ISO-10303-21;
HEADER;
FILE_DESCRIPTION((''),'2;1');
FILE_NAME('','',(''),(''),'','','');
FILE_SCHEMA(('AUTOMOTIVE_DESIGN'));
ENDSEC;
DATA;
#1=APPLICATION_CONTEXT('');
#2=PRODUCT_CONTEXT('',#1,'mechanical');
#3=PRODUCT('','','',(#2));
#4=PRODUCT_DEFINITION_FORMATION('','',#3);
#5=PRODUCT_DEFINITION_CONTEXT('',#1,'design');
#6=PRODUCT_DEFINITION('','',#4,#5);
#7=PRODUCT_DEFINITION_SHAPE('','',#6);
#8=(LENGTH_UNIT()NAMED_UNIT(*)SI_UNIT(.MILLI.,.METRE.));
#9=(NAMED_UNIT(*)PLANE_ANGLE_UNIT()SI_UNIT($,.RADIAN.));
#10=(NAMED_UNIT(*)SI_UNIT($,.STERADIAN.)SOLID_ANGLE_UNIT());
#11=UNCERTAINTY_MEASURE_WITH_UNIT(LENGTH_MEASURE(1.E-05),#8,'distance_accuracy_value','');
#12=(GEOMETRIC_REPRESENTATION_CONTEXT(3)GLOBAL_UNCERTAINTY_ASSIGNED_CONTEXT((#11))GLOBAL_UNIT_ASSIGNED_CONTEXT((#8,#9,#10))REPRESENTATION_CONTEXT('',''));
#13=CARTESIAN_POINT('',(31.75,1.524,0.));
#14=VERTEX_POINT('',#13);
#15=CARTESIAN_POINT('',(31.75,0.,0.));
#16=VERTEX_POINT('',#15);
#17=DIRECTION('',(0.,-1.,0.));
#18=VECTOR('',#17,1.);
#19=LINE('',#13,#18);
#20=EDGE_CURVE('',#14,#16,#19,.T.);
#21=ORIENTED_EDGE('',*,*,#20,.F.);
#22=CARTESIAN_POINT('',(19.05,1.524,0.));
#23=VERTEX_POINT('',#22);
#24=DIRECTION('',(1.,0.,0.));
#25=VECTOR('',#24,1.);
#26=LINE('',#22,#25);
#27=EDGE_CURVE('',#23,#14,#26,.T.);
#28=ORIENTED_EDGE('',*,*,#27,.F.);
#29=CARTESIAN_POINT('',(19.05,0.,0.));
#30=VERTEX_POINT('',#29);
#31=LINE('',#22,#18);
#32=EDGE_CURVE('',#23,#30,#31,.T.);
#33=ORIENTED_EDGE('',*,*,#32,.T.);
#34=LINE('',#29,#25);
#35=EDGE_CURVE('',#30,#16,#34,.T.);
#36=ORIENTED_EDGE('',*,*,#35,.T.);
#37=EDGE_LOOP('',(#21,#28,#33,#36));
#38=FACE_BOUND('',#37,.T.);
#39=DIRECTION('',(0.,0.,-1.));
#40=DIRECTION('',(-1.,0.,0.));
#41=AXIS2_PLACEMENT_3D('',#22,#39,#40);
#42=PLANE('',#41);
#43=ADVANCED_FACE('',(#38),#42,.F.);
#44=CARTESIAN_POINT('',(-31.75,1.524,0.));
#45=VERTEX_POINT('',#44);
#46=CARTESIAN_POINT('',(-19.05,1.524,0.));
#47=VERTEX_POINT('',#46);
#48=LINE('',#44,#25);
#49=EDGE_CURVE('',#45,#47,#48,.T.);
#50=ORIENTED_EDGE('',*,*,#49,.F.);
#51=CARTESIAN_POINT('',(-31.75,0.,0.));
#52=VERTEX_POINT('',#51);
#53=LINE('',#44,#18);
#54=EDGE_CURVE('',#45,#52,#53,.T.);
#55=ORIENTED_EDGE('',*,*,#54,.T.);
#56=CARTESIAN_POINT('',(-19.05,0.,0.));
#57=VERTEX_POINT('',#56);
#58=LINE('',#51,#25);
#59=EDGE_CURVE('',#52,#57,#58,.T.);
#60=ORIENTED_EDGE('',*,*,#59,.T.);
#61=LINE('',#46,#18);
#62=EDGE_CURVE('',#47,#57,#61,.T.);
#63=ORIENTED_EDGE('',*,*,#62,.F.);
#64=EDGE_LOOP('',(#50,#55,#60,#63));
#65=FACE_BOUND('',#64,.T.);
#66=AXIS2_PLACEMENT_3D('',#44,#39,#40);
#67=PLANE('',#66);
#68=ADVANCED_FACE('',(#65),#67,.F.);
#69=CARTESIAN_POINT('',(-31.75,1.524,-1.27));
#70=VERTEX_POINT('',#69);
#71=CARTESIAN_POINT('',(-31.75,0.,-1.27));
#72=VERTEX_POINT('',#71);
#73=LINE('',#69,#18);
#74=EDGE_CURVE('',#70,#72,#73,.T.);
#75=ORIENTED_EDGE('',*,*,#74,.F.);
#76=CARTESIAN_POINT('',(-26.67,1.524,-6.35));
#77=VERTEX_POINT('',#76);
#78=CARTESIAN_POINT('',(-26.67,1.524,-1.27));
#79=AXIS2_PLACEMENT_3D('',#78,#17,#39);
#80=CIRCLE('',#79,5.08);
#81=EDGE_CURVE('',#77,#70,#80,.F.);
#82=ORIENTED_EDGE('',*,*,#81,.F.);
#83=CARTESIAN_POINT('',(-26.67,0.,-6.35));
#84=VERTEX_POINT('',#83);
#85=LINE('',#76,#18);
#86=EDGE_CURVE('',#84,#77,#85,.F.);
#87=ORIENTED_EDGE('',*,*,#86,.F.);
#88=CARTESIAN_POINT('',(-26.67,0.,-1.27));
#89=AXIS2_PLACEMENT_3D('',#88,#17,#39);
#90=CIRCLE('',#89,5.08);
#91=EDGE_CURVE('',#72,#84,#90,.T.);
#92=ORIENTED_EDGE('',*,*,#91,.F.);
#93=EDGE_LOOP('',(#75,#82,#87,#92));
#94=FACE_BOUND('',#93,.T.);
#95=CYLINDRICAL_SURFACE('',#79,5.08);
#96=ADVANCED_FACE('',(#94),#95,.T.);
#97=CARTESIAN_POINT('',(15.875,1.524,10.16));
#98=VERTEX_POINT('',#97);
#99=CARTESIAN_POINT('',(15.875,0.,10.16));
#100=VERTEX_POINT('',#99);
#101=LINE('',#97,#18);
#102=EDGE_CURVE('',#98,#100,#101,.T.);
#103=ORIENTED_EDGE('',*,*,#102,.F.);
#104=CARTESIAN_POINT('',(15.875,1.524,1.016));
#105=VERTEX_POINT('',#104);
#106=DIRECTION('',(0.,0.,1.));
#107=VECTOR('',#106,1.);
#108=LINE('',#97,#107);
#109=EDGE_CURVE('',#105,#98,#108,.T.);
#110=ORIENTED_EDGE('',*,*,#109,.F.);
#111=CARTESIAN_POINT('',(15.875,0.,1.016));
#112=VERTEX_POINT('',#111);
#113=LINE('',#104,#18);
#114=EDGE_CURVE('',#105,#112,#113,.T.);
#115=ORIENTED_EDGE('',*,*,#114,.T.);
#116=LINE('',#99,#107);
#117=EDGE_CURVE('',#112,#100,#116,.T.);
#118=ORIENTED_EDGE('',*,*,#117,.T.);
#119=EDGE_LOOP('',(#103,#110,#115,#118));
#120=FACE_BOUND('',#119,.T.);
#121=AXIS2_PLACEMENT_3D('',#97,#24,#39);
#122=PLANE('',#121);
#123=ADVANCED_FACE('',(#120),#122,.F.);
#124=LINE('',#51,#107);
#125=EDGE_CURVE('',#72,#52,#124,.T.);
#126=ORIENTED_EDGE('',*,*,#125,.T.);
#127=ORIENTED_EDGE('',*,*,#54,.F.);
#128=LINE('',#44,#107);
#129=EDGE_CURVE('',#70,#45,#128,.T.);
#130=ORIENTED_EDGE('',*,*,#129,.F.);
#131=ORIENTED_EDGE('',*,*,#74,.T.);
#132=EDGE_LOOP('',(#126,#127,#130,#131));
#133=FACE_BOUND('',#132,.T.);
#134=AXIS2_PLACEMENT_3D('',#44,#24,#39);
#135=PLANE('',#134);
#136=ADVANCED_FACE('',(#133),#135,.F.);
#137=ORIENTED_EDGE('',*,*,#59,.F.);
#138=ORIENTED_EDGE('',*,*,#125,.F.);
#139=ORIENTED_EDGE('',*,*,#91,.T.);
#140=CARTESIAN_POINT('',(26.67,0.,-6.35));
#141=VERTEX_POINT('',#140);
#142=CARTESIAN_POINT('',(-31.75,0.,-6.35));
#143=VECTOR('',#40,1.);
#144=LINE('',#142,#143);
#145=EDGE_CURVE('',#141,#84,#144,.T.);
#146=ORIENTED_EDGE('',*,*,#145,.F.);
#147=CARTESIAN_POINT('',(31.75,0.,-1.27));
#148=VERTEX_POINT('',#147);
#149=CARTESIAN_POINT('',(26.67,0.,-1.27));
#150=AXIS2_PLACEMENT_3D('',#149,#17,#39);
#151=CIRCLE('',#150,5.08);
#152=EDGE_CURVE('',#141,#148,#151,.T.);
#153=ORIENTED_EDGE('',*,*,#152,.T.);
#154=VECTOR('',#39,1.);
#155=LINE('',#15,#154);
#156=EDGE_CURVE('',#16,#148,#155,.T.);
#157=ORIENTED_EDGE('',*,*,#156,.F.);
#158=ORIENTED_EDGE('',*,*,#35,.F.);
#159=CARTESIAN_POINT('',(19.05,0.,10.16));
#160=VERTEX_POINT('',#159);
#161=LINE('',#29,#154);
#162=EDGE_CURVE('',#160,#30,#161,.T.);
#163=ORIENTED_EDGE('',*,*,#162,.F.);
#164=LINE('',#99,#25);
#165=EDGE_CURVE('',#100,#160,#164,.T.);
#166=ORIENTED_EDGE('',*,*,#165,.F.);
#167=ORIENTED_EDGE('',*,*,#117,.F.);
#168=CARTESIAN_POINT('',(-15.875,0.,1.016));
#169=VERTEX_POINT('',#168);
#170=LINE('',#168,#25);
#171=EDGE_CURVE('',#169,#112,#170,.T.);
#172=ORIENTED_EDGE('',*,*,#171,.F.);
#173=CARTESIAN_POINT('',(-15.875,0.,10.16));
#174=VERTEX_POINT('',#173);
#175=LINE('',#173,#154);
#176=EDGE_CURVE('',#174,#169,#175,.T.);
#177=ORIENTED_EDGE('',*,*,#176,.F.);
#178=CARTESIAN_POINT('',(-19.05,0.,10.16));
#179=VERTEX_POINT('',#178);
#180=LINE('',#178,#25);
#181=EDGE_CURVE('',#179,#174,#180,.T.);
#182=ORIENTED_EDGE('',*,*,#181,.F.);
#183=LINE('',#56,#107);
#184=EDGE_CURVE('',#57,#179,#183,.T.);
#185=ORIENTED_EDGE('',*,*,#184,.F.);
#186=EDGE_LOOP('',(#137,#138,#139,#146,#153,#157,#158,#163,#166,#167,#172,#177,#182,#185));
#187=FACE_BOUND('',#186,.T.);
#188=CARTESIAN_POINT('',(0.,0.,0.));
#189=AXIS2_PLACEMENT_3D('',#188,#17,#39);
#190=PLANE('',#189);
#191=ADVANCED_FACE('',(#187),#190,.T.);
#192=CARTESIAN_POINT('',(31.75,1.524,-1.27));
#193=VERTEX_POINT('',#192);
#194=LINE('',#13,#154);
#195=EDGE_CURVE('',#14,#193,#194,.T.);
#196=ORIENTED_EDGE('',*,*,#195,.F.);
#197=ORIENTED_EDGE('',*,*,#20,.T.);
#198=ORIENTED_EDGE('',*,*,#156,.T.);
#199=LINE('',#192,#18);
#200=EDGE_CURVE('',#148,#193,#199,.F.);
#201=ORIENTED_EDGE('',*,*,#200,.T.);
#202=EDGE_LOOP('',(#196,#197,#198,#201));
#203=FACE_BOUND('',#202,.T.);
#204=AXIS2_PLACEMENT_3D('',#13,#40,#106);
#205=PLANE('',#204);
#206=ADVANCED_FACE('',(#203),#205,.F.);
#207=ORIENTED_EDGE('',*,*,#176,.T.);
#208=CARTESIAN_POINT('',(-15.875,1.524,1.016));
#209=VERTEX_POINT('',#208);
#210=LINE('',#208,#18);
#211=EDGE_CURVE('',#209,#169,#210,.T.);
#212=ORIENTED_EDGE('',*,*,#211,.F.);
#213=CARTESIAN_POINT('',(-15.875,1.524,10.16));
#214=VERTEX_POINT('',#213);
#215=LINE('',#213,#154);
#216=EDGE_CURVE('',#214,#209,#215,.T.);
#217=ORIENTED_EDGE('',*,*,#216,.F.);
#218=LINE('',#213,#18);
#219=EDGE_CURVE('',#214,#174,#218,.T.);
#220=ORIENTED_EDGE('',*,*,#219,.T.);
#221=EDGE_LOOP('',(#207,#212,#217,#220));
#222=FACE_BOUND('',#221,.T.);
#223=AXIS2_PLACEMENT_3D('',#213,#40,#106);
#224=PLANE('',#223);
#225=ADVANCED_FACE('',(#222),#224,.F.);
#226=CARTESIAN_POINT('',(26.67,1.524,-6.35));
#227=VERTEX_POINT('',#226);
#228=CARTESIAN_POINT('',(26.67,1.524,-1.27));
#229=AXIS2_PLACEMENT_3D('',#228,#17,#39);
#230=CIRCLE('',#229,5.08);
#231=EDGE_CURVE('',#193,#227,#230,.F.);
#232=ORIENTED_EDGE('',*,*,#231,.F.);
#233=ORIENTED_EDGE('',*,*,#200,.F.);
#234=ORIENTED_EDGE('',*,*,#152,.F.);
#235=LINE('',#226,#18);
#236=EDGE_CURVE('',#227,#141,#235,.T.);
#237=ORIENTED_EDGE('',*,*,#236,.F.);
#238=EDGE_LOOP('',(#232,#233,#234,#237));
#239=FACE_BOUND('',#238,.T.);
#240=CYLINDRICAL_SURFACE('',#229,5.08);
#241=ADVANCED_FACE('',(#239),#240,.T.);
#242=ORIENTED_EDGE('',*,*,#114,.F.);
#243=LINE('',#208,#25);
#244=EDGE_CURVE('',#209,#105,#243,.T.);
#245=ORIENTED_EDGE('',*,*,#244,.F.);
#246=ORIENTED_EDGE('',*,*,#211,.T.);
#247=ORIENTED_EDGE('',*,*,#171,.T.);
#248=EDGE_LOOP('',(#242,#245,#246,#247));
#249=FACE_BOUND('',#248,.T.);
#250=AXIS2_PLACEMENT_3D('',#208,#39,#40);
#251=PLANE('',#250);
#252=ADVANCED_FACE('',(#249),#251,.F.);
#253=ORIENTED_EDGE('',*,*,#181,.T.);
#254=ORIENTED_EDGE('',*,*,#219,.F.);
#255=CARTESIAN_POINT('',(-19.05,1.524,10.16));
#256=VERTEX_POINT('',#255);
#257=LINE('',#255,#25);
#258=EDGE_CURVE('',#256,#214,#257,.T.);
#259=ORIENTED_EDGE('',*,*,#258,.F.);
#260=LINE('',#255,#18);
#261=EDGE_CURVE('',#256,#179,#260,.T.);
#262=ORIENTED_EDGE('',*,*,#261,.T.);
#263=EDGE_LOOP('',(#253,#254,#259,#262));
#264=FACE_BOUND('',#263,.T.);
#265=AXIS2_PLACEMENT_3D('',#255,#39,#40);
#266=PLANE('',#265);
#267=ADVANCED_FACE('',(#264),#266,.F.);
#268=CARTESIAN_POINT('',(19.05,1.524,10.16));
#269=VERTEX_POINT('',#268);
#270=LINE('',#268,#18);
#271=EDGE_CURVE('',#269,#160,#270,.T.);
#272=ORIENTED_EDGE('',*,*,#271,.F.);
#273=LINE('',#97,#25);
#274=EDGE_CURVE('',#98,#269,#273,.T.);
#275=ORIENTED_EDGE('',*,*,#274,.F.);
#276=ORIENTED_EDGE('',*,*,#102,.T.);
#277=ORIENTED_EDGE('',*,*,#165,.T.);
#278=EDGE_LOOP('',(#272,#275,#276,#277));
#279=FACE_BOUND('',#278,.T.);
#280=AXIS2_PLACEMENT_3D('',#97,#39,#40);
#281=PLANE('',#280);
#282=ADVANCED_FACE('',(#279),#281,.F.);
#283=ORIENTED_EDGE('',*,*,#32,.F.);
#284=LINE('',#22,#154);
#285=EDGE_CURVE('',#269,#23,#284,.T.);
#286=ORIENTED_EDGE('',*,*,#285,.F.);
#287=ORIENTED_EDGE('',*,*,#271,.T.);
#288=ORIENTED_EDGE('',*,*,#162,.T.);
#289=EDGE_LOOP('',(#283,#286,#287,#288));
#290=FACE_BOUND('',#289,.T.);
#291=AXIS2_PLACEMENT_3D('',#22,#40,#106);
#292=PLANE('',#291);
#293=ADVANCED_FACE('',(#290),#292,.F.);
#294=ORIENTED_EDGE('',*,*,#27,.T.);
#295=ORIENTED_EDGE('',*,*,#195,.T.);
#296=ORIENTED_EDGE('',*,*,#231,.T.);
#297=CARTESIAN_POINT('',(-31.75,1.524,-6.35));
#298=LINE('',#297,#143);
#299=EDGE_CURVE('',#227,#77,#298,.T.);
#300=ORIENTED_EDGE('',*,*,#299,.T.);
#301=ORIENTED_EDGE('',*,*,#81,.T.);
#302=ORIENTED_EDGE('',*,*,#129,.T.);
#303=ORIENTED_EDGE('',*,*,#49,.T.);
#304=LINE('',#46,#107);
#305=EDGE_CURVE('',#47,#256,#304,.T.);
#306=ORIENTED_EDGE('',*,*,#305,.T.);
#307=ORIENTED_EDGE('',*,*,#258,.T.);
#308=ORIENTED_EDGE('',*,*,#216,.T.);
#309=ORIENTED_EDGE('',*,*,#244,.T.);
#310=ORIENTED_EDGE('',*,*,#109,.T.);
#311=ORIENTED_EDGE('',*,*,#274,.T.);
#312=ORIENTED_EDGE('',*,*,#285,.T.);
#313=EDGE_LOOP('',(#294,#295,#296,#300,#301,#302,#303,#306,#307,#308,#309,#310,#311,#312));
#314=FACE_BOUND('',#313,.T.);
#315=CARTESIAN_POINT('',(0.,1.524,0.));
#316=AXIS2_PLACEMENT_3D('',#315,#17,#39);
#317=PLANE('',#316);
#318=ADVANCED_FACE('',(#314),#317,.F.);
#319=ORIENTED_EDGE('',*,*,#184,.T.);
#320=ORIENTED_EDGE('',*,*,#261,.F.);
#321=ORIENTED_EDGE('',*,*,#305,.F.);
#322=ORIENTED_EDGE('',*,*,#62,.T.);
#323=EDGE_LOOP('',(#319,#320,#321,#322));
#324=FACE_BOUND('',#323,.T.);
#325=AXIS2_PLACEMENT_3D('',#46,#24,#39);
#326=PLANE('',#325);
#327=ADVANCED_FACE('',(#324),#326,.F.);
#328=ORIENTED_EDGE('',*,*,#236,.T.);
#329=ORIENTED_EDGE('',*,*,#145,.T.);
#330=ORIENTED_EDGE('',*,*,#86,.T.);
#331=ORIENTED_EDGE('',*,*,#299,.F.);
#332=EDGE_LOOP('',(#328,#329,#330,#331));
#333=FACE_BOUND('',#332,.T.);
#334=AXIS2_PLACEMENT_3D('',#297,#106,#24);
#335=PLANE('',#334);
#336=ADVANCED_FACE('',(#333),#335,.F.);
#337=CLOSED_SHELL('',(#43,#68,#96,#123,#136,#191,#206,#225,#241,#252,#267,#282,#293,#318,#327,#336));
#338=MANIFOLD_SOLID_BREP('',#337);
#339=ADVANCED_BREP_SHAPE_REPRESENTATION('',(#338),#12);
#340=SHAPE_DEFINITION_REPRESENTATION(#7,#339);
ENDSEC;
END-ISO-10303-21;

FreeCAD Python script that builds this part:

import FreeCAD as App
import Part
import Sketcher

V = App.Vector
Q = App.Units.Quantity


def edges_at(feature, points):
    """Names of the edges that pass closest to the given points."""
    edges = feature.Shape.Edges
    near = lambda p: min(range(len(edges)), key=lambda i: edges[i].distToShape(Part.Vertex(*p))[0])
    return sorted({f"Edge{near(p) + 1}" for p in points})


def add_polygon(sketch, points):
    """Adds a closed chain of lines whose ends are joined by coincident constraints."""
    first, n = sketch.GeometryCount, len(points)
    for a, b in zip(points, points[1:] + points[:1]):
        sketch.addGeometry(Part.LineSegment(App.Vector(*a, 0), App.Vector(*b, 0)), False)
    for i in range(n):
        sketch.addConstraint(Sketcher.Constraint("Coincident", first + i, 2, first + (i + 1) % n, 1))

doc = App.newDocument("Part")
body = doc.addObject("PartDesign::Body", "Body")

# Sketch on XZ plane
sketch1 = body.newObject("Sketcher::SketchObject", "Sketch")
sketch1.AttachmentSupport = (doc.getObject("XZ_Plane"), [""])
sketch1.MapMode = "FlatFace"
add_polygon(sketch1, [(19.1, 0), (31.8, 0), (31.8, -6.3), (-31.8, -6.3), (-31.8, 0), (-19.1, 0), (-19.1, 10.2), (-15.9, 10.2), (-15.9, 1), (15.9, 1), (15.9, 10.2), (19.1, 10.2)])  # lines 0-11
sketch1.addConstraint([
    Sketcher.Constraint("Horizontal", 0),
    Sketcher.Constraint("Vertical", 1),
    Sketcher.Constraint("Horizontal", 2),
    Sketcher.Constraint("Vertical", 3),
    Sketcher.Constraint("Horizontal", 4),
    Sketcher.Constraint("Vertical", 5),
    Sketcher.Constraint("Horizontal", 6),
    Sketcher.Constraint("Vertical", 7),
    Sketcher.Constraint("Horizontal", 8),
    Sketcher.Constraint("Vertical", 9),
    Sketcher.Constraint("Horizontal", 10),
    Sketcher.Constraint("Vertical", 11),
    Sketcher.Constraint("Symmetric", 0, 2, 3, 2, -1, 1),
    Sketcher.Constraint("Symmetric", 6, 2, 9, 2, -2),
    Sketcher.Constraint("Symmetric", 4, 2, 11, 2, -2),
    Sketcher.Constraint("DistanceX", 0, 1, 0, 2, Q("0.5 in")),
    Sketcher.Constraint("DistanceX", 2, 2, 2, 1, Q("2.5 in")),
    Sketcher.Constraint("DistanceY", 5, 1, 5, 2, Q("0.4 in")),
    Sketcher.Constraint("DistanceX", 8, 1, 8, 2, Q("1.25 in")),
    Sketcher.Constraint("DistanceY", 1, 2, 1, 1, Q("0.25 in")),
    Sketcher.Constraint("DistanceY", 7, 2, 7, 1, Q("0.36 in")),
])
pad1 = body.newObject("PartDesign::Pad", "Pad")
pad1.Profile = sketch1
pad1.Length = Q("0.06 in")
pad1.Reversed = True
doc.recompute()

fillet = body.newObject("PartDesign::Fillet", "Fillet")
fillet.Base = (pad1, edges_at(pad1, [(-31.75, 0.762, -6.35), (31.75, 0.762, -6.35)]))
fillet.Radius = Q("0.2 in")

doc.recompute()
